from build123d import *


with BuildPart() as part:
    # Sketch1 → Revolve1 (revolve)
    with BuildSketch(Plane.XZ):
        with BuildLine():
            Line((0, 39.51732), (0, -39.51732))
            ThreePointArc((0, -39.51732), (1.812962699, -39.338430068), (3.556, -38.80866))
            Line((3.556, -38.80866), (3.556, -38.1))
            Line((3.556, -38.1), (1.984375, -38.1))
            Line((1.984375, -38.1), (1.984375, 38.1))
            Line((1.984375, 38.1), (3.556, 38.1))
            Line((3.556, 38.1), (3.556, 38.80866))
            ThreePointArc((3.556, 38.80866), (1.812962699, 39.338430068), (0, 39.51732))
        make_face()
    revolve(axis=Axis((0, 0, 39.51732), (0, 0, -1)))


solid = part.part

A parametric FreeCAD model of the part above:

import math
import FreeCAD as App
import Part
import Sketcher

V = App.Vector
Q = App.Units.Quantity

doc = App.newDocument("Part")
body = doc.addObject("PartDesign::Body", "Body")

# Sketch on XZ plane
sketch1 = body.newObject("Sketcher::SketchObject", "Sketch")
sketch1.AttachmentSupport = (doc.getObject("XZ_Plane"), [""])
sketch1.MapMode = "FlatFace"
sketch1.addGeometry(Part.LineSegment(V(0, 39.5, 0), V(0, -39.5, 0)), False)
sketch1.addGeometry(Part.ArcOfCircle(Part.Circle(V(0, -30.2, 0), V(0, 0, 1), 9.3), math.radians(-90), math.radians(-67)), False)
sketch1.addGeometry(Part.LineSegment(V(3.6, -38.8, 0), V(3.6, -38.1, 0)), False)
sketch1.addGeometry(Part.LineSegment(V(3.6, -38.1, 0), V(2, -38.1, 0)), False)
sketch1.addGeometry(Part.LineSegment(V(2, -38.1, 0), V(2, 38.1, 0)), False)
sketch1.addGeometry(Part.LineSegment(V(2, 38.1, 0), V(3.6, 38.1, 0)), False)
sketch1.addGeometry(Part.LineSegment(V(3.6, 38.1, 0), V(3.6, 38.8, 0)), False)
sketch1.addGeometry(Part.ArcOfCircle(Part.Circle(V(0, 30.2, 0), V(0, 0, 1), 9.3), math.radians(67), math.radians(90)), False)
sketch1.addConstraint(Sketcher.Constraint("Coincident", 0, 2, 1, 1))
sketch1.addConstraint(Sketcher.Constraint("Coincident", 1, 2, 2, 1))
sketch1.addConstraint(Sketcher.Constraint("Coincident", 2, 2, 3, 1))
sketch1.addConstraint(Sketcher.Constraint("Coincident", 3, 2, 4, 1))
sketch1.addConstraint(Sketcher.Constraint("Coincident", 4, 2, 5, 1))
sketch1.addConstraint(Sketcher.Constraint("Coincident", 5, 2, 6, 1))
sketch1.addConstraint(Sketcher.Constraint("Coincident", 6, 2, 7, 1))
sketch1.addConstraint(Sketcher.Constraint("Coincident", 7, 2, 0, 1))
sketch1.addConstraint(Sketcher.Constraint("Vertical", 0))
sketch1.addConstraint(Sketcher.Constraint("Vertical", 2))
sketch1.addConstraint(Sketcher.Constraint("Horizontal", 3))
sketch1.addConstraint(Sketcher.Constraint("Vertical", 4))
sketch1.addConstraint(Sketcher.Constraint("Horizontal", 5))
sketch1.addConstraint(Sketcher.Constraint("Vertical", 6))
sketch1.addConstraint(Sketcher.Constraint("Equal", 1, 7))
sketch1.addConstraint(Sketcher.Constraint("Symmetric", 1, 3, 7, 3, -1, 1))
sketch1.addConstraint(Sketcher.Constraint("Symmetric", 2, 2, 5, 2, -1))
sketch1.addConstraint(Sketcher.Constraint("PointOnObject", 1, 3, -2))
sketch1.addConstraint(Sketcher.Constraint("PointOnObject", 0, 2, -2))
sketch1.addConstraint(Sketcher.Constraint("DistanceY", 4, 1, 4, 2, Q("3 in")))
sketch1.addConstraint(Sketcher.Constraint("DistanceX", -1, 1, 1, 2, Q("0.14 in")))
sketch1.addConstraint(Sketcher.Constraint("DistanceY", 0, 2, 0, 1, Q("3.1116 in")))
sketch1.addConstraint(Sketcher.Constraint("DistanceY", 2, 1, 2, 2, Q("0.0279 in")))
sketch1.addConstraint(Sketcher.Constraint("DistanceX", -1, 1, 3, 2, Q("0.078125 in")))
revolution = body.newObject("PartDesign::Revolution", "Revolution")
revolution.Profile = sketch1
revolution.ReferenceAxis = (sketch1, ["V_Axis"])
revolution.Angle = 360

doc.recompute()
